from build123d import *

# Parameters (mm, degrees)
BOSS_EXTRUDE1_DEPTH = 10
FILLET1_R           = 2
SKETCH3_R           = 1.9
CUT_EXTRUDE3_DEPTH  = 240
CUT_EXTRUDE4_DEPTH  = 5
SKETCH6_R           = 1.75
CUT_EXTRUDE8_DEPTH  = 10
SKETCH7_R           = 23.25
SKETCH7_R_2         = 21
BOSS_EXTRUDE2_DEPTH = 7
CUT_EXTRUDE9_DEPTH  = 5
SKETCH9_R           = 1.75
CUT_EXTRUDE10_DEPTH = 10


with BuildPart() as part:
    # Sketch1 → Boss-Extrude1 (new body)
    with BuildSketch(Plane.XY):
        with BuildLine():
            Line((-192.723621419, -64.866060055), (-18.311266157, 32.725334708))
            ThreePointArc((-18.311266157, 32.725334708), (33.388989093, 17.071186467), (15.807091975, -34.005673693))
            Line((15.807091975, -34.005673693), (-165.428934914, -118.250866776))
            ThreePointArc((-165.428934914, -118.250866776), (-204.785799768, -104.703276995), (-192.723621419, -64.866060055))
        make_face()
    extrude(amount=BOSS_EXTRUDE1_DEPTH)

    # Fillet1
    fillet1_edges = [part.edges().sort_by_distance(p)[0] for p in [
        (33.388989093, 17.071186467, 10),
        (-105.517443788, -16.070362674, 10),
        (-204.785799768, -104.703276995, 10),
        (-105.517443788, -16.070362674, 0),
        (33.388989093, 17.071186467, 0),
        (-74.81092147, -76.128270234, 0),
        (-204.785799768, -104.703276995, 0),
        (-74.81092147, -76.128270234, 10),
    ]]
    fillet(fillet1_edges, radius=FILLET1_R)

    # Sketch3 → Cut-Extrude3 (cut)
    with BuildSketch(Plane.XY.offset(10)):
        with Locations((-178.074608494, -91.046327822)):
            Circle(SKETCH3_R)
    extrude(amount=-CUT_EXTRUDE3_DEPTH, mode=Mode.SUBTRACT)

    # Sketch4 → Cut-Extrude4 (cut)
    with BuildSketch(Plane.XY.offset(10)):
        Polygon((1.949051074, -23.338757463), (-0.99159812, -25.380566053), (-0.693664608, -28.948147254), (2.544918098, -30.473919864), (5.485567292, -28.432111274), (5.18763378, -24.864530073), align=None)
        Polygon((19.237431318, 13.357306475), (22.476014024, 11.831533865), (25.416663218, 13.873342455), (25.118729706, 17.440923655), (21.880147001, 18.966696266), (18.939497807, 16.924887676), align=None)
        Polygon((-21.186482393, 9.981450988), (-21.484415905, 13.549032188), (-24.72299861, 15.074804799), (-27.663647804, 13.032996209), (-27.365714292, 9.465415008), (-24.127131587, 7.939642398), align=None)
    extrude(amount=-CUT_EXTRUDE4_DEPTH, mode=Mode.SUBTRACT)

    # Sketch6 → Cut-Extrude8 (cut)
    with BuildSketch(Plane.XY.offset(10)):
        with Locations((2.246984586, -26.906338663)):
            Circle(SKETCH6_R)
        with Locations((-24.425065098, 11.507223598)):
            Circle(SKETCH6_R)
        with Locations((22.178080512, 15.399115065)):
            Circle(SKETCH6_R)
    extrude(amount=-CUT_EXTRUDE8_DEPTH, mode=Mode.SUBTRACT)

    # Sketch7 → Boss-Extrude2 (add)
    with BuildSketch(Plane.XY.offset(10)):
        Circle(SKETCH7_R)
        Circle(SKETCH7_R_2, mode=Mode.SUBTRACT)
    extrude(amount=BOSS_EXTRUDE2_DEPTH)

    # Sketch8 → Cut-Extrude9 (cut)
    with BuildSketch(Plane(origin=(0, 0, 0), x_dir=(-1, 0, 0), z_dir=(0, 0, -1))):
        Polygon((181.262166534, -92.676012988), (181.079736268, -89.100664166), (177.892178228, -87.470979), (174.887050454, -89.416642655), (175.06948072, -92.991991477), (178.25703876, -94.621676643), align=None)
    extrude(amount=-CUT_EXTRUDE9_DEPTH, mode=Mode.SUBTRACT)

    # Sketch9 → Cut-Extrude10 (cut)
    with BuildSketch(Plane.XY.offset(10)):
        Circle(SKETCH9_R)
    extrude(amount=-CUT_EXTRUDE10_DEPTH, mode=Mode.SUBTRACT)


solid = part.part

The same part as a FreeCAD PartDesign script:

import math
import FreeCAD as App
import Part
import Sketcher


def edges_at(feature, points):
    """Names of the edges that pass closest to the given points."""
    edges = feature.Shape.Edges
    near = lambda p: min(range(len(edges)), key=lambda i: edges[i].distToShape(Part.Vertex(*p))[0])
    return sorted({f"Edge{near(p) + 1}" for p in points})


def add_polygon(sketch, points):
    """Adds a closed chain of lines whose ends are joined by coincident constraints."""
    first, n = sketch.GeometryCount, len(points)
    for a, b in zip(points, points[1:] + points[:1]):
        sketch.addGeometry(Part.LineSegment(App.Vector(*a, 0), App.Vector(*b, 0)), False)
    for i in range(n):
        sketch.addConstraint(Sketcher.Constraint("Coincident", first + i, 2, first + (i + 1) % n, 1))

doc = App.newDocument("Part")
params = doc.addObject("Spreadsheet::Sheet", "Params")
for row, (alias, value) in enumerate([
    ("sketch1_radius", "30 mm"),
    ("sketch1_radius2", "37.5 mm"),
    ("pad1_length", "10 mm"),
    ("fillet_radius", "2 mm"),
    ("sketch2_diameter", "3.8 mm"),
    ("pocket1_length", "240 mm"),
    ("sketch3_length", "3.58 mm"),
    ("pocket2_length", "5 mm"),
    ("sketch4_diameter", "3.5 mm"),
    ("pocket3_length", "10 mm"),
    ("sketch5_diameter", "42 mm"),
    ("sketch5_diameter2", "46.5 mm"),
    ("pad2_length", "7 mm"),
    ("sketch6_length", "3.58 mm"),
    ("pocket4_length", "5 mm"),
    ("sketch7_diameter", "3.5 mm"),
    ("pocket5_length", "10 mm"),
], start=1):
    params.set(f"A{row}", alias)
    params.set(f"B{row}", "=" + value)
    params.setAlias(f"B{row}", alias)

body = doc.addObject("PartDesign::Body", "Body")

# Sketch on XY plane
sketch1 = body.newObject("Sketcher::SketchObject", "Sketch")
sketch1.AttachmentSupport = (doc.getObject("XY_Plane"), [""])
sketch1.MapMode = "FlatFace"
sketch1.addGeometry([
    Part.LineSegment(App.Vector(-18, 33, 0), App.Vector(-193, -65, 0)),
    Part.ArcOfCircle(Part.Circle(App.Vector(-178, -91, 0), App.Vector(0, 0, 1), 30), math.radians(119), math.radians(295)),
    Part.LineSegment(App.Vector(-165, -118, 0), App.Vector(16, -34, 0)),
    Part.ArcOfCircle(Part.Circle(App.Vector(0, 0, 0), App.Vector(0, 0, 1), 38), math.radians(-65), math.radians(119)),
], False)
sketch1.addConstraint([
    Sketcher.Constraint("Tangent", 0, 2, 1, 1),
    Sketcher.Constraint("Tangent", 1, 2, 2, 1),
    Sketcher.Constraint("Tangent", 2, 2, 3, 1),
    Sketcher.Constraint("Tangent", 3, 2, 0, 1),
    Sketcher.Constraint("Coincident", 3, 3, -1, 1),
    Sketcher.Constraint("Radius", 1, 30.0),
    Sketcher.Constraint("Radius", 3, 37.5),
    Sketcher.Constraint("DistanceX", 1, 3, 2, 2, 193.8817),
    Sketcher.Constraint("DistanceY", 1, 2, 3, 2, 150.976201),
])
sketch1.setExpression("Constraints[5]", "Params.sketch1_radius")
sketch1.setExpression("Constraints[6]", "Params.sketch1_radius2")
pad1 = body.newObject("PartDesign::Pad", "Pad")
pad1.Profile = sketch1
pad1.setExpression("Length", "Params.pad1_length")
doc.recompute()

fillet = body.newObject("PartDesign::Fillet", "Fillet")
fillet.Base = (pad1, edges_at(pad1, [
    (33.389, 17.071, 10),
    (-105.517, -16.07, 10),
    (-204.786, -104.703, 10),
    (-105.517, -16.07, 0),
    (33.389, 17.071, 0),
    (-74.811, -76.128, 0),
    (-204.786, -104.703, 0),
    (-74.811, -76.128, 10),
]))
fillet.setExpression("Radius", "Params.fillet_radius")

# Sketch on XY plane
sketch2 = body.newObject("Sketcher::SketchObject", "Sketch001")
sketch2.AttachmentSupport = (doc.getObject("XY_Plane"), [""])
sketch2.MapMode = "FlatFace"
sketch2.AttachmentOffset = App.Placement(App.Vector(0, 0, 10), App.Rotation())
sketch2.addGeometry(Part.Circle(App.Vector(-178.1, -91, 0), App.Vector(0, 0, 1), 1.9), False)
sketch2.addConstraint([
    Sketcher.Constraint("Diameter", 0, 3.8),
    Sketcher.Constraint("DistanceX", 0, 3, -1, 1, 178.074608),
    Sketcher.Constraint("DistanceY", 0, 3, -1, 1, 91.046328),
])
sketch2.setExpression("Constraints[0]", "Params.sketch2_diameter")
pocket1 = body.newObject("PartDesign::Pocket", "Pocket")
pocket1.Profile = sketch2
pocket1.setExpression("Length", "Params.pocket1_length")

# Sketch on XY plane
sketch3 = body.newObject("Sketcher::SketchObject", "Sketch002")
sketch3.AttachmentSupport = (doc.getObject("XY_Plane"), [""])
sketch3.MapMode = "FlatFace"
sketch3.AttachmentOffset = App.Placement(App.Vector(0, 0, 10), App.Rotation())
add_polygon(sketch3, [(1.9, -23.3), (-1, -25.4), (-0.7, -28.9), (2.5, -30.5), (5.5, -28.4), (5.2, -24.9)])  # lines 0-5
add_polygon(sketch3, [(19.2, 13.4), (22.5, 11.8), (25.4, 13.9), (25.1, 17.4), (21.9, 19), (18.9, 16.9)])  # lines 6-11
add_polygon(sketch3, [(-21.2, 10), (-21.5, 13.5), (-24.7, 15.1), (-27.7, 13), (-27.4, 9.5), (-24.1, 7.9)])  # lines 12-17
sketch3.addConstraint([
    Sketcher.Constraint("Parallel", 0, 3),
    Sketcher.Constraint("Parallel", 1, 4),
    Sketcher.Constraint("Parallel", 2, 5),
    Sketcher.Constraint("Parallel", 5, 6),
    Sketcher.Constraint("Parallel", 3, 7),
    Sketcher.Constraint("Parallel", 4, 8),
    Sketcher.Constraint("Parallel", 6, 9),
    Sketcher.Constraint("Parallel", 7, 10),
    Sketcher.Constraint("Parallel", 8, 11),
    Sketcher.Constraint("Parallel", 11, 12),
    Sketcher.Constraint("Parallel", 9, 13),
    Sketcher.Constraint("Parallel", 10, 14),
    Sketcher.Constraint("Parallel", 12, 15),
    Sketcher.Constraint("Parallel", 13, 16),
    Sketcher.Constraint("Parallel", 14, 17),
    Sketcher.Constraint("Equal", 0, 1),
    Sketcher.Constraint("Equal", 1, 2),
    Sketcher.Constraint("Equal", 2, 3),
    Sketcher.Constraint("Equal", 5, 6),
    Sketcher.Constraint("Equal", 6, 7),
    Sketcher.Constraint("Equal", 7, 8),
    Sketcher.Constraint("Equal", 8, 9),
    Sketcher.Constraint("Equal", 11, 12),
    Sketcher.Constraint("Equal", 12, 13),
    Sketcher.Constraint("Equal", 13, 14),
    Sketcher.Constraint("Equal", 14, 15),
    Sketcher.Constraint("Distance", 0, 3.58),
    Sketcher.Constraint("DistanceX", 13, 2, -1, 1, 24.722999),
    Sketcher.Constraint("DistanceX", 0, 2, -1, 1, 0.991598),
    Sketcher.Constraint("DistanceX", 1, 2, 4, 2, 5.881298),
    Sketcher.Constraint("DistanceY", 0, 2, 6, 2, 37.2121),
    Sketcher.Constraint("DistanceY", 0, 2, 12, 2, 38.929598),
    Sketcher.Constraint("DistanceX", -1, 1, 2, 2, 2.544918),
    Sketcher.Constraint("DistanceY", 2, 2, -1, 1, 30.47392),
    Sketcher.Constraint("DistanceY", 3, 2, -1, 1, 28.432111),
    Sketcher.Constraint("DistanceX", -1, 1, 8, 2, 25.11873),
])
sketch3.setExpression("Constraints[44]", "Params.sketch3_length")
pocket2 = body.newObject("PartDesign::Pocket", "Pocket001")
pocket2.Profile = sketch3
pocket2.setExpression("Length", "Params.pocket2_length")

# Sketch on XY plane
sketch4 = body.newObject("Sketcher::SketchObject", "Sketch003")
sketch4.AttachmentSupport = (doc.getObject("XY_Plane"), [""])
sketch4.MapMode = "FlatFace"
sketch4.AttachmentOffset = App.Placement(App.Vector(0, 0, 10), App.Rotation())
sketch4.addGeometry([
    Part.Circle(App.Vector(2.2, -26.9, 0), App.Vector(0, 0, 1), 1.8),
    Part.Circle(App.Vector(-24.4, 11.5, 0), App.Vector(0, 0, 1), 1.8),
    Part.Circle(App.Vector(22.2, 15.4, 0), App.Vector(0, 0, 1), 1.8),
], False)
sketch4.addConstraint([
    Sketcher.Constraint("Equal", 0, 1),
    Sketcher.Constraint("Equal", 1, 2),
    Sketcher.Constraint("Diameter", 0, 3.5),
    Sketcher.Constraint("DistanceY", 0, 3, -1, 1, 26.906339),
    Sketcher.Constraint("DistanceX", -1, 1, 2, 3, 22.178081),
    Sketcher.Constraint("DistanceX", 1, 3, 0, 3, 26.67205),
    Sketcher.Constraint("DistanceY", 1, 3, 2, 3, 3.891891),
    Sketcher.Constraint("DistanceX", -1, 1, 0, 3, 2.246985),
    Sketcher.Constraint("DistanceY", -1, 1, 1, 3, 11.507224),
])
sketch4.setExpression("Constraints[2]", "Params.sketch4_diameter")
pocket3 = body.newObject("PartDesign::Pocket", "Pocket002")
pocket3.Profile = sketch4
pocket3.setExpression("Length", "Params.pocket3_length")

# Sketch on XY plane
sketch5 = body.newObject("Sketcher::SketchObject", "Sketch004")
sketch5.AttachmentSupport = (doc.getObject("XY_Plane"), [""])
sketch5.MapMode = "FlatFace"
sketch5.AttachmentOffset = App.Placement(App.Vector(0, 0, 10), App.Rotation())
sketch5.addGeometry([
    Part.Circle(App.Vector(0, 0, 0), App.Vector(0, 0, 1), 23),
    Part.Circle(App.Vector(0, 0, 0), App.Vector(0, 0, 1), 21),
], False)
sketch5.addConstraint([
    Sketcher.Constraint("Coincident", 0, 3, -1, 1),
    Sketcher.Constraint("Coincident", 1, 3, -1, 1),
    Sketcher.Constraint("Diameter", 1, 42.0),
    Sketcher.Constraint("Diameter", 0, 46.5),
])
sketch5.setExpression("Constraints[2]", "Params.sketch5_diameter")
sketch5.setExpression("Constraints[3]", "Params.sketch5_diameter2")
pad2 = body.newObject("PartDesign::Pad", "Pad001")
pad2.Profile = sketch5
pad2.setExpression("Length", "Params.pad2_length")

# Sketch on XY plane
sketch6 = body.newObject("Sketcher::SketchObject", "Sketch005")
sketch6.AttachmentSupport = (doc.getObject("XY_Plane"), [""])
sketch6.MapMode = "FlatFace"
add_polygon(sketch6, [(-181.3, -92.7), (-181.1, -89.1), (-177.9, -87.5), (-174.9, -89.4), (-175.1, -93), (-178.3, -94.6)])  # lines 0-5
sketch6.addConstraint([
    Sketcher.Constraint("Parallel", 0, 3),
    Sketcher.Constraint("Parallel", 1, 4),
    Sketcher.Constraint("Parallel", 2, 5),
    Sketcher.Constraint("Equal", 0, 1),
    Sketcher.Constraint("Equal", 1, 2),
    Sketcher.Constraint("Equal", 2, 3),
    Sketcher.Constraint("Distance", 0, 3.58),
    Sketcher.Constraint("DistanceX", 1, 2, -1, 1, 177.892178),
    Sketcher.Constraint("DistanceY", 1, 2, -1, 1, 87.470979),
    Sketcher.Constraint("DistanceX", 2, 2, -1, 1, 174.88705),
    Sketcher.Constraint("DistanceX", 3, 2, -1, 1, 175.069481),
    Sketcher.Constraint("DistanceX", 4, 2, -1, 1, 178.257039),
])
sketch6.setExpression("Constraints[12]", "Params.sketch6_length")
pocket4 = body.newObject("PartDesign::Pocket", "Pocket003")
pocket4.Profile = sketch6
pocket4.setExpression("Length", "Params.pocket4_length")
pocket4.Reversed = True

# Sketch on XY plane
sketch7 = body.newObject("Sketcher::SketchObject", "Sketch006")
sketch7.AttachmentSupport = (doc.getObject("XY_Plane"), [""])
sketch7.MapMode = "FlatFace"
sketch7.AttachmentOffset = App.Placement(App.Vector(0, 0, 10), App.Rotation())
sketch7.addGeometry(Part.Circle(App.Vector(0, 0, 0), App.Vector(0, 0, 1), 1.8), False)
sketch7.addConstraint([
    Sketcher.Constraint("Coincident", 0, 3, -1, 1),
    Sketcher.Constraint("Diameter", 0, 3.5),
])
sketch7.setExpression("Constraints[1]", "Params.sketch7_diameter")
pocket5 = body.newObject("PartDesign::Pocket", "Pocket004")
pocket5.Profile = sketch7
pocket5.setExpression("Length", "Params.pocket5_length")

doc.recompute()
